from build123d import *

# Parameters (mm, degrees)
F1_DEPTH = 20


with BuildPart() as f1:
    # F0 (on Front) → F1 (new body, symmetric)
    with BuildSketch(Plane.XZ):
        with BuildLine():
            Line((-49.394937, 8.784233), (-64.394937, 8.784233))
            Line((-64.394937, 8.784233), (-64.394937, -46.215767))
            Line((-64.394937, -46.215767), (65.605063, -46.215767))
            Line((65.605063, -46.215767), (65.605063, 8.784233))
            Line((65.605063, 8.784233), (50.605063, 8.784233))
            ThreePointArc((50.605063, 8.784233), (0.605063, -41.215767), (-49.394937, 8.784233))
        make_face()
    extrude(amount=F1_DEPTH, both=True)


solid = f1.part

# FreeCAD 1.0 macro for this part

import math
import FreeCAD as App
import Part
import Sketcher
from FreeCAD import Vector
Q = App.Units.Quantity

doc = App.newDocument("Part")
params = doc.addObject("Spreadsheet::Sheet", "Params")
for row, (alias, value) in enumerate([
    ("sketch1_radius", "50 mm"),
    ("sketch1_width", "15 mm"),
    ("sketch1_height", "55 mm"),
    ("pad1_length", "40 mm"),
], start=1):
    params.set(f"A{row}", alias)
    params.set(f"B{row}", "=" + value)
    params.setAlias(f"B{row}", alias)

body = doc.addObject("PartDesign::Body", "Body")

sketch1 = doc.addObject("Sketcher::SketchObject", "Sketch")
body.addObject(sketch1)
sketch1.AttachmentSupport = (doc.XZ_Plane, [""])
sketch1.MapMode = "FlatFace"
sketch1.addGeometry([
    Part.LineSegment(Vector(-49, 9, 0), Vector(-64, 9, 0)),
    Part.LineSegment(Vector(-64, 9, 0), Vector(-64, -46, 0)),
    Part.LineSegment(Vector(-64, -46, 0), Vector(66, -46, 0)),
    Part.LineSegment(Vector(66, -46, 0), Vector(66, 9, 0)),
    Part.LineSegment(Vector(66, 9, 0), Vector(51, 9, 0)),
    Part.ArcOfCircle(Part.Circle(Vector(1, 9, 0), Vector(0, 0, 1), 50), math.radians(180), math.radians(360)),
], False)
sketch1.addConstraint([
    Sketcher.Constraint("Coincident", 0, 2, 1, 1),
    Sketcher.Constraint("Coincident", 1, 2, 2, 1),
    Sketcher.Constraint("Coincident", 2, 2, 3, 1),
    Sketcher.Constraint("Coincident", 3, 2, 4, 1),
    Sketcher.Constraint("Coincident", 4, 2, 5, 2),
    Sketcher.Constraint("Coincident", 5, 1, 0, 1),
    Sketcher.Constraint("Horizontal", 0),
    Sketcher.Constraint("Vertical", 1),
    Sketcher.Constraint("Horizontal", 2),
    Sketcher.Constraint("Vertical", 3),
    Sketcher.Constraint("Horizontal", 4),
    Sketcher.Constraint("Horizontal", 5, 3, 0, 2),
    Sketcher.Constraint("Horizontal", 0, 2, 3, 2),
    Sketcher.Constraint("Equal", 0, 4),
    Sketcher.Constraint("Radius", 5, Q("50 mm")),
    Sketcher.Constraint("DistanceX", 0, 2, 0, 1, Q("15 mm")),
    Sketcher.Constraint("DistanceY", 1, 2, 1, 1, Q("55 mm")),
    Sketcher.Constraint("DistanceX", -1, 1, 5, 3, Q("0.605063 mm")),
    Sketcher.Constraint("DistanceY", -1, 1, 5, 3, Q("8.784233 mm")),
])
sketch1.setExpression("Constraints[14]", "Params.sketch1_radius")
sketch1.setExpression("Constraints[15]", "Params.sketch1_width")
sketch1.setExpression("Constraints[16]", "Params.sketch1_height")
pad1 = doc.addObject("PartDesign::Pad", "Pad")
body.addObject(pad1)
pad1.Profile = sketch1
pad1.setExpression("Length", "Params.pad1_length")
pad1.Midplane = True

doc.recompute()
